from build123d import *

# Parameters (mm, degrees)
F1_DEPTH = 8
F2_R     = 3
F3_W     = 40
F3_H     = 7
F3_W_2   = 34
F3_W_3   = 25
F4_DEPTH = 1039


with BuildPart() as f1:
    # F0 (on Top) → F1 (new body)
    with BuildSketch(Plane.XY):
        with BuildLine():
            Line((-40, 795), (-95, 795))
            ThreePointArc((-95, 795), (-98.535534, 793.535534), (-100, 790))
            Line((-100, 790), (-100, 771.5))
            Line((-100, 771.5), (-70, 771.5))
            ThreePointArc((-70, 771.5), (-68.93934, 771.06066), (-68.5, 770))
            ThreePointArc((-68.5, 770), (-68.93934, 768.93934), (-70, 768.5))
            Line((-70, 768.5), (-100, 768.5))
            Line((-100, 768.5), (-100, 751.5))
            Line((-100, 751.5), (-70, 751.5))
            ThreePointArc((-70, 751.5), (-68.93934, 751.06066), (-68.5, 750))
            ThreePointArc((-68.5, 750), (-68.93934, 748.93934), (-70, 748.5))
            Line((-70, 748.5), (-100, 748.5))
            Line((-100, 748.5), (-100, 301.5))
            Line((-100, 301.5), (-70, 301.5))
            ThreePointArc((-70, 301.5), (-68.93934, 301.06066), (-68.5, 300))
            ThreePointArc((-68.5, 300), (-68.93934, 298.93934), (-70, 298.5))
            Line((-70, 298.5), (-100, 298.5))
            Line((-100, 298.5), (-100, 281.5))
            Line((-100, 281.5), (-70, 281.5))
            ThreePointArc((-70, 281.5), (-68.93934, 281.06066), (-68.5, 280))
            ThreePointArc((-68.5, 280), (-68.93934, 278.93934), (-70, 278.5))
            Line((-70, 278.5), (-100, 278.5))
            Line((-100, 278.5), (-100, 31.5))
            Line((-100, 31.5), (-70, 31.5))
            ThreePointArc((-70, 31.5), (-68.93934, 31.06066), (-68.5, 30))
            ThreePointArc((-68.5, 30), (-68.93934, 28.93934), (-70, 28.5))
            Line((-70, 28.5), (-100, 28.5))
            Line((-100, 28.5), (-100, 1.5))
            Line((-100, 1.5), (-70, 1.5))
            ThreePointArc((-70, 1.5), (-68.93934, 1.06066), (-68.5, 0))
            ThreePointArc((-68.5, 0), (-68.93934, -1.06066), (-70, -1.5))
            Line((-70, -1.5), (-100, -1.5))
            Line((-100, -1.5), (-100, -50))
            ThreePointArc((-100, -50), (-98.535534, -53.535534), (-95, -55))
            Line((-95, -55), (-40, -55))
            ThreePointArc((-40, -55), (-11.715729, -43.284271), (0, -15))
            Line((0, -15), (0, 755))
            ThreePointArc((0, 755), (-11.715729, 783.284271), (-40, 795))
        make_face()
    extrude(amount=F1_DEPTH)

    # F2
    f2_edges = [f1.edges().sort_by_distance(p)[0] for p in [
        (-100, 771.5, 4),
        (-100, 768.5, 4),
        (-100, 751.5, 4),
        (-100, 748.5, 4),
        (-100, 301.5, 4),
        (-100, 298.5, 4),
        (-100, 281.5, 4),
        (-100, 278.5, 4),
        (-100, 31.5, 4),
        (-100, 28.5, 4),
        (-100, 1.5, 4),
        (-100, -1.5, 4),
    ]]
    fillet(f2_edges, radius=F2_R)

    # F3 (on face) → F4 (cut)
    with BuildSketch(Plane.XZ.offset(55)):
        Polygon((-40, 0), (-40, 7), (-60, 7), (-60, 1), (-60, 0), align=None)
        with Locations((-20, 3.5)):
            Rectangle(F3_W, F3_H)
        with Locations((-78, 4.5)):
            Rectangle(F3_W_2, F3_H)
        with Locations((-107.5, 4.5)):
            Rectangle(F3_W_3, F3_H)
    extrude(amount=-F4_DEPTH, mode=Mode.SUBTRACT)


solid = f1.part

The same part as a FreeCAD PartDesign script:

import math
import FreeCAD as App
import Part
import Sketcher

V = App.Vector


def edges_at(feature, points):
    """Names of the edges that pass closest to the given points."""
    edges = feature.Shape.Edges
    near = lambda p: min(range(len(edges)), key=lambda i: edges[i].distToShape(Part.Vertex(*p))[0])
    return sorted({f"Edge{near(p) + 1}" for p in points})

doc = App.newDocument("Part")
params = doc.addObject("Spreadsheet::Sheet", "Params")
for row, (alias, value) in enumerate([
    ("sketch1_radius", "5 mm"),
    ("sketch1_radius2", "40.000001 mm"),
    ("sketch1_radius3", "1.500001 mm"),
    ("sketch1_width", "55 mm"),
    ("sketch1_width2", "30 mm"),
    ("pad1_length", "8 mm"),
    ("fillet_radius", "3 mm"),
    ("sketch2_width", "60 mm"),
    ("sketch2_width2", "59 mm"),
    ("sketch2_height", "7 mm"),
    ("pocket1_length", "1039 mm"),
], start=1):
    params.set(f"A{row}", alias)
    params.set(f"B{row}", "=" + value)
    params.setAlias(f"B{row}", alias)

body = doc.addObject("PartDesign::Body", "Body")

sketch1 = body.newObject("Sketcher::SketchObject", "Sketch")
sketch1.AttachmentSupport = (doc.getObject("XY_Plane"), [""])
sketch1.MapMode = "FlatFace"
sketch1.addGeometry(Part.LineSegment(V(-40, 795, 0), V(-95, 795, 0)), False)
sketch1.addGeometry(Part.ArcOfCircle(Part.Circle(V(-95, 790, 0), V(0, 0, 1), 5), math.radians(89.999996), math.radians(180.000004)), False)
sketch1.addGeometry(Part.LineSegment(V(-100, 790, 0), V(-100, 771.5, 0)), False)
sketch1.addGeometry(Part.LineSegment(V(-100, 771.5, 0), V(-70, 771.5, 0)), False)
sketch1.addGeometry(Part.ArcOfCircle(Part.Circle(V(-70.000001, 769.999999, 0), V(0, 0, 1), 1.500001), math.radians(0.000022), math.radians(89.999978)), False)
sketch1.addGeometry(Part.ArcOfCircle(Part.Circle(V(-70.000001, 770.000001, 0), V(0, 0, 1), 1.500001), math.radians(-89.999978), math.radians(-0.000022)), False)
sketch1.addGeometry(Part.LineSegment(V(-70, 768.5, 0), V(-100, 768.5, 0)), False)
sketch1.addGeometry(Part.LineSegment(V(-100, 768.5, 0), V(-100, 751.5, 0)), False)
sketch1.addGeometry(Part.LineSegment(V(-100, 751.5, 0), V(-70, 751.5, 0)), False)
sketch1.addGeometry(Part.ArcOfCircle(Part.Circle(V(-70.000001, 749.999999, 0), V(0, 0, 1), 1.500001), math.radians(0.000022), math.radians(89.999978)), False)
sketch1.addGeometry(Part.ArcOfCircle(Part.Circle(V(-70.000001, 750.000001, 0), V(0, 0, 1), 1.500001), math.radians(-89.999978), math.radians(-0.000022)), False)
sketch1.addGeometry(Part.LineSegment(V(-70, 748.5, 0), V(-100, 748.5, 0)), False)
sketch1.addGeometry(Part.LineSegment(V(-100, 748.5, 0), V(-100, 301.5, 0)), False)
sketch1.addGeometry(Part.LineSegment(V(-100, 301.5, 0), V(-70, 301.5, 0)), False)
sketch1.addGeometry(Part.ArcOfCircle(Part.Circle(V(-70.000001, 299.999999, 0), V(0, 0, 1), 1.500001), math.radians(0.000022), math.radians(89.999978)), False)
sketch1.addGeometry(Part.ArcOfCircle(Part.Circle(V(-70.000001, 300.000001, 0), V(0, 0, 1), 1.500001), math.radians(-89.999978), math.radians(-0.000022)), False)
sketch1.addGeometry(Part.LineSegment(V(-70, 298.5, 0), V(-100, 298.5, 0)), False)
sketch1.addGeometry(Part.LineSegment(V(-100, 298.5, 0), V(-100, 281.5, 0)), False)
sketch1.addGeometry(Part.LineSegment(V(-100, 281.5, 0), V(-70, 281.5, 0)), False)
sketch1.addGeometry(Part.ArcOfCircle(Part.Circle(V(-70.000001, 279.999999, 0), V(0, 0, 1), 1.500001), math.radians(0.000022), math.radians(89.999978)), False)
sketch1.addGeometry(Part.ArcOfCircle(Part.Circle(V(-70.000001, 280.000001, 0), V(0, 0, 1), 1.500001), math.radians(-89.999978), math.radians(-0.000022)), False)
sketch1.addGeometry(Part.LineSegment(V(-70, 278.5, 0), V(-100, 278.5, 0)), False)
sketch1.addGeometry(Part.LineSegment(V(-100, 278.5, 0), V(-100, 31.5, 0)), False)
sketch1.addGeometry(Part.LineSegment(V(-100, 31.5, 0), V(-70, 31.5, 0)), False)
sketch1.addGeometry(Part.ArcOfCircle(Part.Circle(V(-70.000001, 29.999999, 0), V(0, 0, 1), 1.500001), math.radians(0.000022), math.radians(89.999978)), False)
sketch1.addGeometry(Part.ArcOfCircle(Part.Circle(V(-70.000001, 30.000001, 0), V(0, 0, 1), 1.500001), math.radians(-89.999978), math.radians(-0.000022)), False)
sketch1.addGeometry(Part.LineSegment(V(-70, 28.5, 0), V(-100, 28.5, 0)), False)
sketch1.addGeometry(Part.LineSegment(V(-100, 28.5, 0), V(-100, 1.5, 0)), False)
sketch1.addGeometry(Part.LineSegment(V(-100, 1.5, 0), V(-70, 1.5, 0)), False)
sketch1.addGeometry(Part.ArcOfCircle(Part.Circle(V(-70.000001, -0.000001, 0), V(0, 0, 1), 1.500001), math.radians(0.000022), math.radians(89.999978)), False)
sketch1.addGeometry(Part.ArcOfCircle(Part.Circle(V(-70.000001, 0.000001, 0), V(0, 0, 1), 1.500001), math.radians(-89.999978), math.radians(-0.000022)), False)
sketch1.addGeometry(Part.LineSegment(V(-70, -1.5, 0), V(-100, -1.5, 0)), False)
sketch1.addGeometry(Part.LineSegment(V(-100, -1.5, 0), V(-100, -50, 0)), False)
sketch1.addGeometry(Part.ArcOfCircle(Part.Circle(V(-95, -50, 0), V(0, 0, 1), 5), math.radians(179.999996), math.radians(270.000004)), False)
sketch1.addGeometry(Part.LineSegment(V(-95, -55, 0), V(-40, -55, 0)), False)
sketch1.addGeometry(Part.ArcOfCircle(Part.Circle(V(-40.000001, -14.999999, 0), V(0, 0, 1), 40.000001), math.radians(-89.999999), math.radians(-0.000001)), False)
sketch1.addGeometry(Part.LineSegment(V(0, -15, 0), V(0, 755, 0)), False)
sketch1.addGeometry(Part.ArcOfCircle(Part.Circle(V(-40.000001, 754.999999, 0), V(0, 0, 1), 40.000001), math.radians(0.000001), math.radians(89.999999)), False)
sketch1.addConstraint(Sketcher.Constraint("Tangent", 0, 2, 1, 1))
sketch1.addConstraint(Sketcher.Constraint("Tangent", 1, 2, 2, 1))
sketch1.addConstraint(Sketcher.Constraint("Coincident", 2, 2, 3, 1))
sketch1.addConstraint(Sketcher.Constraint("Tangent", 3, 2, 4, 2))
sketch1.addConstraint(Sketcher.Constraint("Tangent", 4, 1, 5, 2))
sketch1.addConstraint(Sketcher.Constraint("Tangent", 5, 1, 6, 1))
sketch1.addConstraint(Sketcher.Constraint("Coincident", 6, 2, 7, 1))
sketch1.addConstraint(Sketcher.Constraint("Coincident", 7, 2, 8, 1))
sketch1.addConstraint(Sketcher.Constraint("Tangent", 8, 2, 9, 2))
sketch1.addConstraint(Sketcher.Constraint("Tangent", 9, 1, 10, 2))
sketch1.addConstraint(Sketcher.Constraint("Tangent", 10, 1, 11, 1))
sketch1.addConstraint(Sketcher.Constraint("Coincident", 11, 2, 12, 1))
sketch1.addConstraint(Sketcher.Constraint("Coincident", 12, 2, 13, 1))
sketch1.addConstraint(Sketcher.Constraint("Tangent", 13, 2, 14, 2))
sketch1.addConstraint(Sketcher.Constraint("Tangent", 14, 1, 15, 2))
sketch1.addConstraint(Sketcher.Constraint("Tangent", 15, 1, 16, 1))
sketch1.addConstraint(Sketcher.Constraint("Coincident", 16, 2, 17, 1))
sketch1.addConstraint(Sketcher.Constraint("Coincident", 17, 2, 18, 1))
sketch1.addConstraint(Sketcher.Constraint("Tangent", 18, 2, 19, 2))
sketch1.addConstraint(Sketcher.Constraint("Tangent", 19, 1, 20, 2))
sketch1.addConstraint(Sketcher.Constraint("Tangent", 20, 1, 21, 1))
sketch1.addConstraint(Sketcher.Constraint("Coincident", 21, 2, 22, 1))
sketch1.addConstraint(Sketcher.Constraint("Coincident", 22, 2, 23, 1))
sketch1.addConstraint(Sketcher.Constraint("Tangent", 23, 2, 24, 2))
sketch1.addConstraint(Sketcher.Constraint("Tangent", 24, 1, 25, 2))
sketch1.addConstraint(Sketcher.Constraint("Tangent", 25, 1, 26, 1))
sketch1.addConstraint(Sketcher.Constraint("Coincident", 26, 2, 27, 1))
sketch1.addConstraint(Sketcher.Constraint("Coincident", 27, 2, 28, 1))
sketch1.addConstraint(Sketcher.Constraint("Tangent", 28, 2, 29, 2))
sketch1.addConstraint(Sketcher.Constraint("Tangent", 29, 1, 30, 2))
sketch1.addConstraint(Sketcher.Constraint("Tangent", 30, 1, 31, 1))
sketch1.addConstraint(Sketcher.Constraint("Coincident", 31, 2, 32, 1))
sketch1.addConstraint(Sketcher.Constraint("Tangent", 32, 2, 33, 1))
sketch1.addConstraint(Sketcher.Constraint("Tangent", 33, 2, 34, 1))
sketch1.addConstraint(Sketcher.Constraint("Tangent", 34, 2, 35, 1))
sketch1.addConstraint(Sketcher.Constraint("Tangent", 35, 2, 36, 1))
sketch1.addConstraint(Sketcher.Constraint("Tangent", 36, 2, 37, 1))
sketch1.addConstraint(Sketcher.Constraint("Tangent", 37, 2, 0, 1))
sketch1.addConstraint(Sketcher.Constraint("Horizontal", 0))
sketch1.addConstraint(Sketcher.Constraint("Vertical", 2))
sketch1.addConstraint(Sketcher.Constraint("Horizontal", 3))
sketch1.addConstraint(Sketcher.Constraint("Horizontal", 6))
sketch1.addConstraint(Sketcher.Constraint("Vertical", 7))
sketch1.addConstraint(Sketcher.Constraint("Horizontal", 8))
sketch1.addConstraint(Sketcher.Constraint("Horizontal", 11))
sketch1.addConstraint(Sketcher.Constraint("Vertical", 12))
sketch1.addConstraint(Sketcher.Constraint("Horizontal", 13))
sketch1.addConstraint(Sketcher.Constraint("Horizontal", 16))
sketch1.addConstraint(Sketcher.Constraint("Vertical", 17))
sketch1.addConstraint(Sketcher.Constraint("Horizontal", 18))
sketch1.addConstraint(Sketcher.Constraint("Horizontal", 21))
sketch1.addConstraint(Sketcher.Constraint("Vertical", 22))
sketch1.addConstraint(Sketcher.Constraint("Horizontal", 23))
sketch1.addConstraint(Sketcher.Constraint("Horizontal", 26))
sketch1.addConstraint(Sketcher.Constraint("Vertical", 27))
sketch1.addConstraint(Sketcher.Constraint("Horizontal", 28))
sketch1.addConstraint(Sketcher.Constraint("Horizontal", 31))
sketch1.addConstraint(Sketcher.Constraint("Vertical", 32))
sketch1.addConstraint(Sketcher.Constraint("Horizontal", 34))
sketch1.addConstraint(Sketcher.Constraint("Vertical", 36))
sketch1.addConstraint(Sketcher.Constraint("Equal", 4, 5))
sketch1.addConstraint(Sketcher.Constraint("Equal", 5, 9))
sketch1.addConstraint(Sketcher.Constraint("Equal", 9, 10))
sketch1.addConstraint(Sketcher.Constraint("Equal", 10, 14))
sketch1.addConstraint(Sketcher.Constraint("Equal", 14, 15))
sketch1.addConstraint(Sketcher.Constraint("Equal", 15, 19))
sketch1.addConstraint(Sketcher.Constraint("Equal", 19, 20))
sketch1.addConstraint(Sketcher.Constraint("Equal", 20, 24))
sketch1.addConstraint(Sketcher.Constraint("Equal", 24, 25))
sketch1.addConstraint(Sketcher.Constraint("Equal", 25, 29))
sketch1.addConstraint(Sketcher.Constraint("Equal", 29, 30))
sketch1.addConstraint(Sketcher.Constraint("Equal", 1, 33))
sketch1.addConstraint(Sketcher.Constraint("Equal", 35, 37))
sketch1.addConstraint(Sketcher.Constraint("Symmetric", 27, 2, 31, 2, -1))
sketch1.addConstraint(Sketcher.Constraint("PointOnObject", 29, 1, -1))
sketch1.addConstraint(Sketcher.Constraint("PointOnObject", 35, 2, -2))
sketch1.addConstraint(Sketcher.Constraint("Horizontal", 5, 3, 4, 1))
sketch1.addConstraint(Sketcher.Constraint("Horizontal", 10, 3, 9, 1))
sketch1.addConstraint(Sketcher.Constraint("Horizontal", 15, 3, 14, 1))
sketch1.addConstraint(Sketcher.Constraint("Horizontal", 20, 3, 19, 1))
sketch1.addConstraint(Sketcher.Constraint("Horizontal", 25, 3, 24, 1))
sketch1.addConstraint(Sketcher.Constraint("Vertical", 5, 3, 9, 3))
sketch1.addConstraint(Sketcher.Constraint("Vertical", 10, 3, 14, 3))
sketch1.addConstraint(Sketcher.Constraint("Vertical", 15, 3, 19, 3))
sketch1.addConstraint(Sketcher.Constraint("Vertical", 20, 3, 24, 3))
sketch1.addConstraint(Sketcher.Constraint("Vertical", 25, 3, 29, 3))
sketch1.addConstraint(Sketcher.Constraint("Vertical", 1, 3, 33, 3))
sketch1.addConstraint(Sketcher.Constraint("Vertical", 2, 2, 6, 2))
sketch1.addConstraint(Sketcher.Constraint("Vertical", 7, 2, 11, 2))
sketch1.addConstraint(Sketcher.Constraint("Vertical", 12, 2, 16, 2))
sketch1.addConstraint(Sketcher.Constraint("Vertical", 17, 2, 21, 2))
sketch1.addConstraint(Sketcher.Constraint("Equal", 7, 17))
sketch1.addConstraint(Sketcher.Constraint("Radius", 1, 5.0))
sketch1.addConstraint(Sketcher.Constraint("Radius", 35, 40.000001))
sketch1.addConstraint(Sketcher.Constraint("Radius", 4, 1.500001))
sketch1.addConstraint(Sketcher.Constraint("DistanceX", 0, 2, 0, 1, 55.0))
sketch1.addConstraint(Sketcher.Constraint("DistanceX", 3, 1, 3, 2, 30.0))
sketch1.addConstraint(Sketcher.Constraint("DistanceY", 7, 2, 7, 1, 17.0))
sketch1.addConstraint(Sketcher.Constraint("DistanceY", 12, 2, 12, 1, 447.0))
sketch1.addConstraint(Sketcher.Constraint("DistanceY", 22, 2, 22, 1, 247.0))
sketch1.addConstraint(Sketcher.Constraint("DistanceY", 27, 2, 27, 1, 27.0))
sketch1.addConstraint(Sketcher.Constraint("DistanceY", 36, 1, 36, 2, 770.0))
sketch1.addConstraint(Sketcher.Constraint("DistanceY", 2, 2, 2, 1, 18.5))
sketch1.setExpression("Constraints[92]", "Params.sketch1_radius")
sketch1.setExpression("Constraints[93]", "Params.sketch1_radius2")
sketch1.setExpression("Constraints[94]", "Params.sketch1_radius3")
sketch1.setExpression("Constraints[95]", "Params.sketch1_width")
sketch1.setExpression("Constraints[96]", "Params.sketch1_width2")
pad1 = body.newObject("PartDesign::Pad", "Pad")
pad1.Profile = sketch1
pad1.setExpression("Length", "Params.pad1_length")
doc.recompute()

fillet = body.newObject("PartDesign::Fillet", "Fillet")
fillet.Base = (pad1, edges_at(pad1, [
    (-100, 771.5, 4),
    (-100, 768.5, 4),
    (-100, 751.5, 4),
    (-100, 748.5, 4),
    (-100, 301.5, 4),
    (-100, 298.5, 4),
    (-100, 281.5, 4),
    (-100, 278.5, 4),
    (-100, 31.5, 4),
    (-100, 28.5, 4),
    (-100, 1.5, 4),
    (-100, -1.5, 4),
]))
fillet.setExpression("Radius", "Params.fillet_radius")

sketch2 = body.newObject("Sketcher::SketchObject", "Sketch001")
sketch2.AttachmentSupport = (doc.getObject("XZ_Plane"), [""])
sketch2.MapMode = "FlatFace"
sketch2.AttachmentOffset = App.Placement(V(0, 0, 55), App.Rotation())
sketch2.addGeometry(Part.LineSegment(V(-60, 7, 0), V(-60, 0, 0)), False)
sketch2.addGeometry(Part.LineSegment(V(-60, 0, 0), V(0, 0, 0)), False)
sketch2.addGeometry(Part.LineSegment(V(0, 0, 0), V(0, 7, 0)), False)
sketch2.addGeometry(Part.LineSegment(V(0, 7, 0), V(-60, 7, 0)), False)
sketch2.addGeometry(Part.LineSegment(V(-61, 1, 0), V(-61, 8, 0)), False)
sketch2.addGeometry(Part.LineSegment(V(-61, 8, 0), V(-120, 8, 0)), False)
sketch2.addGeometry(Part.LineSegment(V(-120, 8, 0), V(-120, 1, 0)), False)
sketch2.addGeometry(Part.LineSegment(V(-120, 1, 0), V(-61, 1, 0)), False)
sketch2.addConstraint(Sketcher.Constraint("Coincident", 0, 2, 1, 1))
sketch2.addConstraint(Sketcher.Constraint("Coincident", 1, 2, 2, 1))
sketch2.addConstraint(Sketcher.Constraint("Coincident", 2, 2, 3, 1))
sketch2.addConstraint(Sketcher.Constraint("Coincident", 3, 2, 0, 1))
sketch2.addConstraint(Sketcher.Constraint("Coincident", 4, 2, 5, 1))
sketch2.addConstraint(Sketcher.Constraint("Coincident", 5, 2, 6, 1))
sketch2.addConstraint(Sketcher.Constraint("Coincident", 6, 2, 7, 1))
sketch2.addConstraint(Sketcher.Constraint("Coincident", 7, 2, 4, 1))
sketch2.addConstraint(Sketcher.Constraint("Vertical", 0))
sketch2.addConstraint(Sketcher.Constraint("Horizontal", 1))
sketch2.addConstraint(Sketcher.Constraint("Vertical", 2))
sketch2.addConstraint(Sketcher.Constraint("Horizontal", 3))
sketch2.addConstraint(Sketcher.Constraint("Vertical", 4))
sketch2.addConstraint(Sketcher.Constraint("Horizontal", 5))
sketch2.addConstraint(Sketcher.Constraint("Vertical", 6))
sketch2.addConstraint(Sketcher.Constraint("Horizontal", 7))
sketch2.addConstraint(Sketcher.Constraint("Coincident", 1, 2, -1, 1))
sketch2.addConstraint(Sketcher.Constraint("Equal", 2, 4))
sketch2.addConstraint(Sketcher.Constraint("DistanceX", 1, 1, 1, 2, 60.0))
sketch2.addConstraint(Sketcher.Constraint("DistanceX", 5, 2, 5, 1, 59.0))
sketch2.addConstraint(Sketcher.Constraint("DistanceY", 0, 2, 0, 1, 7.0))
sketch2.addConstraint(Sketcher.Constraint("DistanceX", 4, 2, -1, 1, 61.0))
sketch2.addConstraint(Sketcher.Constraint("DistanceY", -1, 1, 4, 2, 8.0))
sketch2.setExpression("Constraints[18]", "Params.sketch2_width")
sketch2.setExpression("Constraints[19]", "Params.sketch2_width2")
sketch2.setExpression("Constraints[20]", "Params.sketch2_height")
pocket1 = body.newObject("PartDesign::Pocket", "Pocket")
pocket1.Profile = sketch2
pocket1.setExpression("Length", "Params.pocket1_length")

doc.recompute()
